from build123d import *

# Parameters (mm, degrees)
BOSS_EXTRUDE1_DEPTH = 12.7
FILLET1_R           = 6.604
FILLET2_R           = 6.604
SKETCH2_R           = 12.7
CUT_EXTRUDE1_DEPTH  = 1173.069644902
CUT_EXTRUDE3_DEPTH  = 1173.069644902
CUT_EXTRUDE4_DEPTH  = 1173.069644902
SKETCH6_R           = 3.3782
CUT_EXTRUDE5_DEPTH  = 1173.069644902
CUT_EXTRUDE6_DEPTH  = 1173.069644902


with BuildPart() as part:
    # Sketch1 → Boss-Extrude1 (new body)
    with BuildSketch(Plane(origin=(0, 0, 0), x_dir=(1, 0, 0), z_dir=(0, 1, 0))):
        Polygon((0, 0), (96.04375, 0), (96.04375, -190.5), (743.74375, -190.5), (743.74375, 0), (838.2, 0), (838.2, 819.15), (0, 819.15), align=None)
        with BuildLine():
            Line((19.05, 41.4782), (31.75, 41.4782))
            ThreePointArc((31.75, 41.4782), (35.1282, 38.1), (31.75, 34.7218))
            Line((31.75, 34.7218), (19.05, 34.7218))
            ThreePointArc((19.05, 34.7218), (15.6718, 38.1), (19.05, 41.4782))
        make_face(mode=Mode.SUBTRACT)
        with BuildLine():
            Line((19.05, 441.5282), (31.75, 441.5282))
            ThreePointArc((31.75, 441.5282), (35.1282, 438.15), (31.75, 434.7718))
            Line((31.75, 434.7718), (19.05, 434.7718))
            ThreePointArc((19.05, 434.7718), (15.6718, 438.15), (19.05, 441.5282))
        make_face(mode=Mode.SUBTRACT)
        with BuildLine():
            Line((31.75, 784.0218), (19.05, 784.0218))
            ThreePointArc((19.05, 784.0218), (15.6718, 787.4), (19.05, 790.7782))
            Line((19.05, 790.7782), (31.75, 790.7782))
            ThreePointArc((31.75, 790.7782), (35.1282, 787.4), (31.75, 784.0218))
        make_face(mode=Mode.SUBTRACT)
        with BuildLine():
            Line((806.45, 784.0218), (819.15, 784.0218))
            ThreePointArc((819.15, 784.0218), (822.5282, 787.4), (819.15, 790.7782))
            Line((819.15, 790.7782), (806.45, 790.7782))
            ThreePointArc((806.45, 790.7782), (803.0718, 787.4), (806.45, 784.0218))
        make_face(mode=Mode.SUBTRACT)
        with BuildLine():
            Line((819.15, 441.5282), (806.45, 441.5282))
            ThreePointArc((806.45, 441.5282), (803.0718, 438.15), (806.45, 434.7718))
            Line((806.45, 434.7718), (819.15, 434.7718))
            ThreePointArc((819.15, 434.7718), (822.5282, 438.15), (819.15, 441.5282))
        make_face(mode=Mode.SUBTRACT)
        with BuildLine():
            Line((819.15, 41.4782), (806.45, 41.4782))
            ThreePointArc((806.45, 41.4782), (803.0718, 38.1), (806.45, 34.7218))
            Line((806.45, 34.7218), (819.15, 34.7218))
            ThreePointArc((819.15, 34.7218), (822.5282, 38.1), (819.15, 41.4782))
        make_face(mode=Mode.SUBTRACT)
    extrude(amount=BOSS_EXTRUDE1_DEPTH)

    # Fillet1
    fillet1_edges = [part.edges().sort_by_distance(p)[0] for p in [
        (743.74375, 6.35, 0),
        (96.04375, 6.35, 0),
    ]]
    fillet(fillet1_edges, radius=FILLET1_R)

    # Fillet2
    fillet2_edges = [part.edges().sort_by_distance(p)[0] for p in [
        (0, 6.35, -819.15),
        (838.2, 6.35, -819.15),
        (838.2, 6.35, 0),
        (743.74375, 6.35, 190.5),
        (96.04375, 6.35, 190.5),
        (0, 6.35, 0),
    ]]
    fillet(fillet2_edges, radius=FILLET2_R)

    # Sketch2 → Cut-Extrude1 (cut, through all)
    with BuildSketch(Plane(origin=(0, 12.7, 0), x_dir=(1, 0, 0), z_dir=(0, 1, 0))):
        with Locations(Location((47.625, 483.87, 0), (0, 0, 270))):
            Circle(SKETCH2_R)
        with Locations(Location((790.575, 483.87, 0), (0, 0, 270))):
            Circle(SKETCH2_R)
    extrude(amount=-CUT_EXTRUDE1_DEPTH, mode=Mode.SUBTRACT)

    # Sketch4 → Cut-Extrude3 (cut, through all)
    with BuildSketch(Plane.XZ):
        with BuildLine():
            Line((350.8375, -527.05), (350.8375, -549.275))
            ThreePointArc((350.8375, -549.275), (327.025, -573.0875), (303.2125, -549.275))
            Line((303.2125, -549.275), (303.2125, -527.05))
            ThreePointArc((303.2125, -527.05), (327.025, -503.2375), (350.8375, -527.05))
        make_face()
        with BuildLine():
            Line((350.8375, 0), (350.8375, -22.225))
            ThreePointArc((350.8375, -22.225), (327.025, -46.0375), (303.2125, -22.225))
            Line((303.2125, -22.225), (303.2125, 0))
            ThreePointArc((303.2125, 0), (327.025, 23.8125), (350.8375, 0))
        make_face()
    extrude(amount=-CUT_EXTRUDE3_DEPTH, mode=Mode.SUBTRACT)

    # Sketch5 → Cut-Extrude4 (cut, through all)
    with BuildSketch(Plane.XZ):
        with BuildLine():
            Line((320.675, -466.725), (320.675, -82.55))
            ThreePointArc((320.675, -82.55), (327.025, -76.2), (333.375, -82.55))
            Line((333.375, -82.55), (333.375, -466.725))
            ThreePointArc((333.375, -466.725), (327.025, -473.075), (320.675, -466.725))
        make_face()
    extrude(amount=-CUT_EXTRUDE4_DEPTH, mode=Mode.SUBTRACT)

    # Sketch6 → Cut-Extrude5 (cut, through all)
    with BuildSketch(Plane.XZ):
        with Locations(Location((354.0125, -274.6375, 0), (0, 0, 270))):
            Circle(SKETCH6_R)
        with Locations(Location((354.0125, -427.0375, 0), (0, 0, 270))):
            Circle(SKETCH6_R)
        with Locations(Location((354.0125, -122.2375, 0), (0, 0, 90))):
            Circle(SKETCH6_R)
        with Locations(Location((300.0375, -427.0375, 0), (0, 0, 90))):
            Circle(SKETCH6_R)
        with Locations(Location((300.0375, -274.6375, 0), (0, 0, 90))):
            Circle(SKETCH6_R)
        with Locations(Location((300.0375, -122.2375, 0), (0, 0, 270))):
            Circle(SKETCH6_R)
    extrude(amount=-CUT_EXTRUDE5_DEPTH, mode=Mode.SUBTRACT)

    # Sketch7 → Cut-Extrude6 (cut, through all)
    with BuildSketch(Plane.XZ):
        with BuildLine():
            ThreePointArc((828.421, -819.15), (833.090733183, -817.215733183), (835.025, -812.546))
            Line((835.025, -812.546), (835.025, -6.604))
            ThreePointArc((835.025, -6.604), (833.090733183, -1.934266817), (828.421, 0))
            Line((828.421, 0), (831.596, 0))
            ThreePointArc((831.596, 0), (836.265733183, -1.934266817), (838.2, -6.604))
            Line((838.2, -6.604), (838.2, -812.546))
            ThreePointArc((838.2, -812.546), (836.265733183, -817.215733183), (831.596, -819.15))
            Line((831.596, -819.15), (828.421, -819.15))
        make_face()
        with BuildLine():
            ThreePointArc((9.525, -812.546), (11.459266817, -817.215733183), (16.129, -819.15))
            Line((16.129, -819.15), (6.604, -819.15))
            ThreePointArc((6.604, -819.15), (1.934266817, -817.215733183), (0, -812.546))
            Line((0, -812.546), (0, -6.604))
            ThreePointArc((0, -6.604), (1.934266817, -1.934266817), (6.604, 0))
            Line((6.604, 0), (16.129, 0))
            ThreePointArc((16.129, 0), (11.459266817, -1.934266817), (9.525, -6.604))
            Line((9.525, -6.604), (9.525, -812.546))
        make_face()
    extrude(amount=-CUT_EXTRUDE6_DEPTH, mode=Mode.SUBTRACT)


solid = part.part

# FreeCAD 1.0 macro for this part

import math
import FreeCAD as App
import Part
import Sketcher
from FreeCAD import Vector
Q = App.Units.Quantity


def edges_at(feature, points):
    """Names of the edges that pass closest to the given points."""
    edges = feature.Shape.Edges
    near = lambda p: min(range(len(edges)), key=lambda i: edges[i].distToShape(Part.Vertex(*p))[0])
    return sorted({f"Edge{near(p) + 1}" for p in points})

doc = App.newDocument("Part")
params = doc.addObject("Spreadsheet::Sheet", "Params")
for row, (alias, value) in enumerate([
    ("sketch1_width", "33 in"),
    ("sketch1_width2", "25.5 in"),
    ("sketch1_width3", "0.5 in"),
    ("sketch1_height", "7.5 in"),
    ("sketch1_radius", "0.133 in"),
    ("pad1_length", "0.5 in"),
    ("fillet_radius", "0.26 in"),
    ("fillet2_radius", "0.26 in"),
    ("sketch2_diameter", "1 in"),
    ("sketch3_radius", "0.9375 in"),
    ("sketch3_height", "0.875 in"),
    ("sketch4_radius", "0.25 in"),
    ("sketch4_height", "15.125 in"),
    ("sketch5_diameter", "0.266 in"),
    ("sketch6_radius", "0.26 in"),
    ("sketch6_height", "31.73 in"),
    ("sketch6_width", "0.125 in"),
    ("sketch6_width2", "0.375 in"),
], start=1):
    params.set(f"A{row}", alias)
    params.set(f"B{row}", "=" + value)
    params.setAlias(f"B{row}", alias)

body = doc.addObject("PartDesign::Body", "Body")

# Sketch on XZ plane
sketch1 = doc.addObject("Sketcher::SketchObject", "Sketch")
body.addObject(sketch1)
sketch1.AttachmentSupport = (doc.XZ_Plane, [""])
sketch1.MapMode = "FlatFace"
sketch1.addGeometry([
    Part.LineSegment(Vector(0, 0, 0), Vector(96, 0, 0)),  # 0
    Part.LineSegment(Vector(96, 0, 0), Vector(96, 190.5, 0)),  # 1
    Part.LineSegment(Vector(96, 190.5, 0), Vector(743.7, 190.5, 0)),  # 2
    Part.LineSegment(Vector(743.7, 190.5, 0), Vector(743.7, 0, 0)),  # 3
    Part.LineSegment(Vector(743.7, 0, 0), Vector(838.2, 0, 0)),  # 4
    Part.LineSegment(Vector(838.2, 0, 0), Vector(838.2, -819.1, 0)),  # 5
    Part.LineSegment(Vector(838.2, -819.1, 0), Vector(0, -819.1, 0)),  # 6
    Part.LineSegment(Vector(0, -819.1, 0), Vector(0, 0, 0)),  # 7
    Part.ArcOfCircle(Part.Circle(Vector(19.1, -38.1, 0), Vector(0, 0, 1), 3.4), math.radians(90), math.radians(270)),  # 8
    Part.LineSegment(Vector(19.1, -41.5, 0), Vector(31.8, -41.5, 0)),  # 9
    Part.ArcOfCircle(Part.Circle(Vector(31.8, -38.1, 0), Vector(0, 0, 1), 3.4), math.radians(-90), math.radians(90)),  # 10
    Part.LineSegment(Vector(31.8, -34.7, 0), Vector(19.1, -34.7, 0)),  # 11
    Part.LineSegment(Vector(806.5, -41.5, 0), Vector(819.1, -41.5, 0)),  # 12
    Part.ArcOfCircle(Part.Circle(Vector(819.1, -38.1, 0), Vector(0, 0, 1), 3.4), math.radians(-90), math.radians(90)),  # 13
    Part.LineSegment(Vector(819.1, -34.7, 0), Vector(806.5, -34.7, 0)),  # 14
    Part.ArcOfCircle(Part.Circle(Vector(806.5, -38.1, 0), Vector(0, 0, 1), 3.4), math.radians(90), math.radians(270)),  # 15
    Part.ArcOfCircle(Part.Circle(Vector(19.1, -438.1, 0), Vector(0, 0, 1), 3.4), math.radians(90), math.radians(270)),  # 16
    Part.LineSegment(Vector(19.1, -441.5, 0), Vector(31.8, -441.5, 0)),  # 17
    Part.ArcOfCircle(Part.Circle(Vector(31.8, -438.1, 0), Vector(0, 0, 1), 3.4), math.radians(-90), math.radians(90)),  # 18
    Part.LineSegment(Vector(31.8, -434.8, 0), Vector(19.1, -434.8, 0)),  # 19
    Part.ArcOfCircle(Part.Circle(Vector(31.8, -787.4, 0), Vector(0, 0, 1), 3.4), math.radians(-90), math.radians(90)),  # 20
    Part.LineSegment(Vector(31.8, -784, 0), Vector(19.1, -784, 0)),  # 21
    Part.ArcOfCircle(Part.Circle(Vector(19.1, -787.4, 0), Vector(0, 0, 1), 3.4), math.radians(90), math.radians(270)),  # 22
    Part.LineSegment(Vector(19.1, -790.8, 0), Vector(31.8, -790.8, 0)),  # 23
    Part.LineSegment(Vector(806.5, -441.5, 0), Vector(819.1, -441.5, 0)),  # 24
    Part.ArcOfCircle(Part.Circle(Vector(819.1, -438.1, 0), Vector(0, 0, 1), 3.4), math.radians(-90), math.radians(90)),  # 25
    Part.LineSegment(Vector(819.1, -434.8, 0), Vector(806.5, -434.8, 0)),  # 26
    Part.ArcOfCircle(Part.Circle(Vector(806.5, -438.1, 0), Vector(0, 0, 1), 3.4), math.radians(90), math.radians(270)),  # 27
    Part.LineSegment(Vector(819.1, -784, 0), Vector(806.5, -784, 0)),  # 28
    Part.ArcOfCircle(Part.Circle(Vector(806.5, -787.4, 0), Vector(0, 0, 1), 3.4), math.radians(90), math.radians(270)),  # 29
    Part.LineSegment(Vector(806.5, -790.8, 0), Vector(819.1, -790.8, 0)),  # 30
    Part.ArcOfCircle(Part.Circle(Vector(819.1, -787.4, 0), Vector(0, 0, 1), 3.4), math.radians(-90), math.radians(90)),  # 31
], False)
sketch1.addConstraint([
    Sketcher.Constraint("Coincident", 0, 2, 1, 1),
    Sketcher.Constraint("Coincident", 1, 2, 2, 1),
    Sketcher.Constraint("Coincident", 2, 2, 3, 1),
    Sketcher.Constraint("Coincident", 3, 2, 4, 1),
    Sketcher.Constraint("Coincident", 4, 2, 5, 1),
    Sketcher.Constraint("Coincident", 5, 2, 6, 1),
    Sketcher.Constraint("Coincident", 6, 2, 7, 1),
    Sketcher.Constraint("Coincident", 7, 2, 0, 1),
    Sketcher.Constraint("Tangent", 8, 2, 9, 1),
    Sketcher.Constraint("Tangent", 9, 2, 10, 1),
    Sketcher.Constraint("Tangent", 10, 2, 11, 1),
    Sketcher.Constraint("Tangent", 11, 2, 8, 1),
    Sketcher.Constraint("Tangent", 12, 2, 13, 1),
    Sketcher.Constraint("Tangent", 13, 2, 14, 1),
    Sketcher.Constraint("Tangent", 14, 2, 15, 1),
    Sketcher.Constraint("Tangent", 15, 2, 12, 1),
    Sketcher.Constraint("Tangent", 16, 2, 17, 1),
    Sketcher.Constraint("Tangent", 17, 2, 18, 1),
    Sketcher.Constraint("Tangent", 18, 2, 19, 1),
    Sketcher.Constraint("Tangent", 19, 2, 16, 1),
    Sketcher.Constraint("Tangent", 20, 2, 21, 1),
    Sketcher.Constraint("Tangent", 21, 2, 22, 1),
    Sketcher.Constraint("Tangent", 22, 2, 23, 1),
    Sketcher.Constraint("Tangent", 23, 2, 20, 1),
    Sketcher.Constraint("Tangent", 24, 2, 25, 1),
    Sketcher.Constraint("Tangent", 25, 2, 26, 1),
    Sketcher.Constraint("Tangent", 26, 2, 27, 1),
    Sketcher.Constraint("Tangent", 27, 2, 24, 1),
    Sketcher.Constraint("Tangent", 28, 2, 29, 1),
    Sketcher.Constraint("Tangent", 29, 2, 30, 1),
    Sketcher.Constraint("Tangent", 30, 2, 31, 1),
    Sketcher.Constraint("Tangent", 31, 2, 28, 1),
    Sketcher.Constraint("Horizontal", 0),
    Sketcher.Constraint("Vertical", 1),
    Sketcher.Constraint("Horizontal", 2),
    Sketcher.Constraint("Vertical", 3),
    Sketcher.Constraint("Horizontal", 4),
    Sketcher.Constraint("Vertical", 5),
    Sketcher.Constraint("Horizontal", 6),
    Sketcher.Constraint("Vertical", 7),
    Sketcher.Constraint("Horizontal", 9),
    Sketcher.Constraint("Horizontal", 11),
    Sketcher.Constraint("Horizontal", 12),
    Sketcher.Constraint("Horizontal", 14),
    Sketcher.Constraint("Horizontal", 17),
    Sketcher.Constraint("Horizontal", 19),
    Sketcher.Constraint("Horizontal", 21),
    Sketcher.Constraint("Horizontal", 23),
    Sketcher.Constraint("Horizontal", 24),
    Sketcher.Constraint("Horizontal", 26),
    Sketcher.Constraint("Horizontal", 28),
    Sketcher.Constraint("Horizontal", 30),
    Sketcher.Constraint("Coincident", 7, 2, -1, 1),
    Sketcher.Constraint("Equal", 10, 13),
    Sketcher.Constraint("Equal", 15, 16),
    Sketcher.Constraint("Equal", 18, 20),
    Sketcher.Constraint("Equal", 22, 25),
    Sketcher.Constraint("Equal", 27, 29),
    Sketcher.Constraint("PointOnObject", 3, 2, -1),
    Sketcher.Constraint("Horizontal", 10, 3, 13, 3),
    Sketcher.Constraint("Horizontal", 18, 3, 25, 3),
    Sketcher.Constraint("Horizontal", 22, 3, 29, 3),
    Sketcher.Constraint("Vertical", 8, 3, 16, 3),
    Sketcher.Constraint("Vertical", 10, 3, 18, 3),
    Sketcher.Constraint("Vertical", 18, 3, 20, 3),
    Sketcher.Constraint("Vertical", 16, 3, 22, 3),
    Sketcher.Constraint("Vertical", 13, 3, 25, 3),
    Sketcher.Constraint("Vertical", 15, 3, 27, 3),
    Sketcher.Constraint("Vertical", 27, 3, 29, 3),
    Sketcher.Constraint("Vertical", 25, 3, 31, 3),
    Sketcher.Constraint("Equal", 11, 12),
    Sketcher.Constraint("DistanceX", 6, 2, 6, 1, Q("33 in")),
    Sketcher.Constraint("DistanceX", 2, 1, 2, 2, Q("25.5 in")),
    Sketcher.Constraint("DistanceX", 9, 1, 9, 2, Q("0.5 in")),
    Sketcher.Constraint("DistanceY", 1, 1, 1, 2, Q("7.5 in")),
    Sketcher.Constraint("DistanceY", 20, 3, -1, 1, Q("31 in")),
    Sketcher.Constraint("Radius", 8, Q("0.133 in")),
    Sketcher.Constraint("DistanceX", 10, 3, 13, 3, Q("31 in")),
    Sketcher.Constraint("DistanceY", 10, 3, 1, 2, Q("9 in")),
    Sketcher.Constraint("DistanceY", 5, 2, 25, 3, Q("15 in")),
    Sketcher.Constraint("DistanceY", 5, 2, 5, 1, Q("32.25 in")),
    Sketcher.Constraint("DistanceX", 0, 1, 0, 2, Q("3.78125 in")),
    Sketcher.Constraint("DistanceX", -1, 1, 8, 3, Q("0.75 in")),
])
sketch1.setExpression("Constraints[71]", "Params.sketch1_width")
sketch1.setExpression("Constraints[72]", "Params.sketch1_width2")
sketch1.setExpression("Constraints[73]", "Params.sketch1_width3")
sketch1.setExpression("Constraints[74]", "Params.sketch1_height")
sketch1.setExpression("Constraints[76]", "Params.sketch1_radius")
pad1 = doc.addObject("PartDesign::Pad", "Pad")
body.addObject(pad1)
pad1.Profile = sketch1
pad1.setExpression("Length", "Params.pad1_length")
pad1.Reversed = True
doc.recompute()

fillet = doc.addObject("PartDesign::Fillet", "Fillet")
body.addObject(fillet)
fillet.Base = (pad1, edges_at(pad1, [(743.744, 6.35, 0), (96.044, 6.35, 0)]))
fillet.setExpression("Radius", "Params.fillet_radius")
doc.recompute()

fillet2 = doc.addObject("PartDesign::Fillet", "Fillet001")
body.addObject(fillet2)
fillet2.Base = (fillet, edges_at(fillet, [
    (0, 6.35, -819.15),
    (838.2, 6.35, -819.15),
    (838.2, 6.35, 0),
    (743.744, 6.35, 190.5),
    (96.044, 6.35, 190.5),
    (0, 6.35, 0),
]))
fillet2.setExpression("Radius", "Params.fillet2_radius")

# Sketch on XZ plane
sketch2 = doc.addObject("Sketcher::SketchObject", "Sketch001")
body.addObject(sketch2)
sketch2.AttachmentSupport = (doc.XZ_Plane, [""])
sketch2.MapMode = "FlatFace"
sketch2.AttachmentOffset = App.Placement(Vector(0, 0, -0.5 * 25.4), App.Rotation())
sketch2.addGeometry([
    Part.Circle(Vector(48, -484, 0), Vector(0, 0, 1), 13),
    Part.Circle(Vector(791, -484, 0), Vector(0, 0, 1), 13),
], False)
sketch2.addConstraint([
    Sketcher.Constraint("Equal", 0, 1),
    Sketcher.Constraint("Horizontal", 0, 3, 1, 3),
    Sketcher.Constraint("Diameter", 0, Q("1 in")),
    Sketcher.Constraint("DistanceY", 0, 3, -1, 1, Q("19.05 in")),
    Sketcher.Constraint("DistanceX", 0, 3, 1, 3, Q("29.25 in")),
    Sketcher.Constraint("DistanceX", -1, 1, 0, 3, Q("1.875 in")),
])
sketch2.setExpression("Constraints[2]", "Params.sketch2_diameter")
pocket1 = doc.addObject("PartDesign::Pocket", "Pocket")
body.addObject(pocket1)
pocket1.Profile = sketch2
pocket1.Type = "ThroughAll"
pocket1.Reversed = True

# Sketch on XZ plane
sketch3 = doc.addObject("Sketcher::SketchObject", "Sketch002")
body.addObject(sketch3)
sketch3.AttachmentSupport = (doc.XZ_Plane, [""])
sketch3.MapMode = "FlatFace"
sketch3.addGeometry([
    Part.LineSegment(Vector(351, -549, 0), Vector(351, -527, 0)),  # 0
    Part.ArcOfCircle(Part.Circle(Vector(327, -527, 0), Vector(0, 0, 1), 24), math.radians(0), math.radians(180)),  # 1
    Part.LineSegment(Vector(303, -527, 0), Vector(303, -549, 0)),  # 2
    Part.ArcOfCircle(Part.Circle(Vector(327, -549, 0), Vector(0, 0, 1), 24), math.radians(180), math.radians(360)),  # 3
    Part.LineSegment(Vector(351, -22, 0), Vector(351, 0, 0)),  # 4
    Part.ArcOfCircle(Part.Circle(Vector(327, 0, 0), Vector(0, 0, 1), 24), math.radians(0), math.radians(180)),  # 5
    Part.LineSegment(Vector(303, 0, 0), Vector(303, -22, 0)),  # 6
    Part.ArcOfCircle(Part.Circle(Vector(327, -22, 0), Vector(0, 0, 1), 24), math.radians(180), math.radians(360)),  # 7
], False)
sketch3.addConstraint([
    Sketcher.Constraint("Tangent", 0, 2, 1, 1),
    Sketcher.Constraint("Tangent", 1, 2, 2, 1),
    Sketcher.Constraint("Tangent", 2, 2, 3, 1),
    Sketcher.Constraint("Tangent", 3, 2, 0, 1),
    Sketcher.Constraint("Tangent", 4, 2, 5, 1),
    Sketcher.Constraint("Tangent", 5, 2, 6, 1),
    Sketcher.Constraint("Tangent", 6, 2, 7, 1),
    Sketcher.Constraint("Tangent", 7, 2, 4, 1),
    Sketcher.Constraint("Vertical", 0),
    Sketcher.Constraint("Vertical", 2),
    Sketcher.Constraint("Vertical", 4),
    Sketcher.Constraint("Vertical", 6),
    Sketcher.Constraint("Equal", 3, 5),
    Sketcher.Constraint("PointOnObject", 5, 3, -1),
    Sketcher.Constraint("Vertical", 3, 3, 5, 3),
    Sketcher.Constraint("Equal", 2, 4),
    Sketcher.Constraint("Radius", 1, Q("0.9375 in")),
    Sketcher.Constraint("DistanceY", 0, 1, 0, 2, Q("0.875 in")),
    Sketcher.Constraint("DistanceY", 1, 3, -1, 1, Q("20.75 in")),
    Sketcher.Constraint("DistanceX", -1, 1, 1, 3, Q("12.875 in")),
])
sketch3.setExpression("Constraints[16]", "Params.sketch3_radius")
sketch3.setExpression("Constraints[17]", "Params.sketch3_height")
pocket2 = doc.addObject("PartDesign::Pocket", "Pocket001")
body.addObject(pocket2)
pocket2.Profile = sketch3
pocket2.Type = "ThroughAll"

# Sketch on XZ plane
sketch4 = doc.addObject("Sketcher::SketchObject", "Sketch003")
body.addObject(sketch4)
sketch4.AttachmentSupport = (doc.XZ_Plane, [""])
sketch4.MapMode = "FlatFace"
sketch4.addGeometry([
    Part.LineSegment(Vector(321, -83, 0), Vector(321, -467, 0)),
    Part.ArcOfCircle(Part.Circle(Vector(327, -467, 0), Vector(0, 0, 1), 6), math.radians(180), math.radians(360)),
    Part.LineSegment(Vector(333, -467, 0), Vector(333, -83, 0)),
    Part.ArcOfCircle(Part.Circle(Vector(327, -83, 0), Vector(0, 0, 1), 6), math.radians(0), math.radians(180)),
], False)
sketch4.addConstraint([
    Sketcher.Constraint("Tangent", 0, 2, 1, 1),
    Sketcher.Constraint("Tangent", 1, 2, 2, 1),
    Sketcher.Constraint("Tangent", 2, 2, 3, 1),
    Sketcher.Constraint("Tangent", 3, 2, 0, 1),
    Sketcher.Constraint("Vertical", 0),
    Sketcher.Constraint("Vertical", 2),
    Sketcher.Constraint("Radius", 1, Q("0.25 in")),
    Sketcher.Constraint("DistanceY", 0, 2, 0, 1, Q("15.125 in")),
    Sketcher.Constraint("DistanceY", 3, 3, -1, 1, Q("3.25 in")),
    Sketcher.Constraint("DistanceX", -1, 1, 1, 3, Q("12.875 in")),
])
sketch4.setExpression("Constraints[6]", "Params.sketch4_radius")
sketch4.setExpression("Constraints[7]", "Params.sketch4_height")
pocket3 = doc.addObject("PartDesign::Pocket", "Pocket002")
body.addObject(pocket3)
pocket3.Profile = sketch4
pocket3.Type = "ThroughAll"

# Sketch on XZ plane
sketch5 = doc.addObject("Sketcher::SketchObject", "Sketch004")
body.addObject(sketch5)
sketch5.AttachmentSupport = (doc.XZ_Plane, [""])
sketch5.MapMode = "FlatFace"
sketch5.addGeometry([
    Part.Circle(Vector(354, -274.6, 0), Vector(0, 0, 1), 3.4),  # 0
    Part.Circle(Vector(354, -427, 0), Vector(0, 0, 1), 3.4),  # 1
    Part.Circle(Vector(354, -122.2, 0), Vector(0, 0, 1), 3.4),  # 2
    Part.Circle(Vector(300, -427, 0), Vector(0, 0, 1), 3.4),  # 3
    Part.Circle(Vector(300, -274.6, 0), Vector(0, 0, 1), 3.4),  # 4
    Part.Circle(Vector(300, -122.2, 0), Vector(0, 0, 1), 3.4),  # 5
], False)
sketch5.addConstraint([
    Sketcher.Constraint("Equal", 0, 1),
    Sketcher.Constraint("Equal", 1, 2),
    Sketcher.Constraint("Equal", 2, 3),
    Sketcher.Constraint("Equal", 3, 4),
    Sketcher.Constraint("Equal", 4, 5),
    Sketcher.Constraint("Horizontal", 1, 3, 3, 3),
    Sketcher.Constraint("Horizontal", 0, 3, 4, 3),
    Sketcher.Constraint("Horizontal", 2, 3, 5, 3),
    Sketcher.Constraint("Vertical", 0, 3, 1, 3),
    Sketcher.Constraint("Vertical", 1, 3, 2, 3),
    Sketcher.Constraint("Vertical", 3, 3, 4, 3),
    Sketcher.Constraint("Vertical", 4, 3, 5, 3),
    Sketcher.Constraint("Diameter", 0, Q("0.266 in")),
    Sketcher.Constraint("DistanceY", 1, 3, 0, 3, Q("6 in")),
    Sketcher.Constraint("DistanceY", 0, 3, 2, 3, Q("6 in")),
    Sketcher.Constraint("DistanceX", -1, 1, 0, 3, Q("13.9375 in")),
    Sketcher.Constraint("DistanceY", 0, 3, -1, 1, Q("10.8125 in")),
    Sketcher.Constraint("DistanceX", -1, 1, 3, 3, Q("11.8125 in")),
])
sketch5.setExpression("Constraints[12]", "Params.sketch5_diameter")
pocket4 = doc.addObject("PartDesign::Pocket", "Pocket003")
body.addObject(pocket4)
pocket4.Profile = sketch5
pocket4.Type = "ThroughAll"

# Sketch on XZ plane
sketch6 = doc.addObject("Sketcher::SketchObject", "Sketch005")
body.addObject(sketch6)
sketch6.AttachmentSupport = (doc.XZ_Plane, [""])
sketch6.MapMode = "FlatFace"
sketch6.addGeometry([
    Part.ArcOfCircle(Part.Circle(Vector(828.4, -812.5, 0), Vector(0, 0, 1), 6.6), math.radians(-90), math.radians(0)),  # 0
    Part.LineSegment(Vector(828.4, -819.1, 0), Vector(831.6, -819.1, 0)),  # 1
    Part.ArcOfCircle(Part.Circle(Vector(831.6, -812.5, 0), Vector(0, 0, 1), 6.6), math.radians(-90), math.radians(0)),  # 2
    Part.LineSegment(Vector(838.2, -812.5, 0), Vector(838.2, -6.6, 0)),  # 3
    Part.ArcOfCircle(Part.Circle(Vector(831.6, -6.6, 0), Vector(0, 0, 1), 6.6), math.radians(0), math.radians(90)),  # 4
    Part.LineSegment(Vector(831.6, 0, 0), Vector(828.4, 0, 0)),  # 5
    Part.ArcOfCircle(Part.Circle(Vector(828.4, -6.6, 0), Vector(0, 0, 1), 6.6), math.radians(0), math.radians(90)),  # 6
    Part.LineSegment(Vector(835, -6.6, 0), Vector(835, -812.5, 0)),  # 7
    Part.ArcOfCircle(Part.Circle(Vector(16.1, -812.5, 0), Vector(0, 0, 1), 6.6), math.radians(180), math.radians(270)),  # 8
    Part.LineSegment(Vector(9.5, -812.5, 0), Vector(9.5, -6.6, 0)),  # 9
    Part.ArcOfCircle(Part.Circle(Vector(16.1, -6.6, 0), Vector(0, 0, 1), 6.6), math.radians(90), math.radians(180)),  # 10
    Part.LineSegment(Vector(16.1, 0, 0), Vector(6.6, 0, 0)),  # 11
    Part.ArcOfCircle(Part.Circle(Vector(6.6, -6.6, 0), Vector(0, 0, 1), 6.6), math.radians(90), math.radians(180)),  # 12
    Part.LineSegment(Vector(0, -6.6, 0), Vector(0, -812.5, 0)),  # 13
    Part.ArcOfCircle(Part.Circle(Vector(6.6, -812.5, 0), Vector(0, 0, 1), 6.6), math.radians(180), math.radians(270)),  # 14
    Part.LineSegment(Vector(6.6, -819.1, 0), Vector(16.1, -819.1, 0)),  # 15
], False)
sketch6.addConstraint([
    Sketcher.Constraint("Tangent", 0, 1, 1, 1),
    Sketcher.Constraint("Tangent", 1, 2, 2, 1),
    Sketcher.Constraint("Tangent", 2, 2, 3, 1),
    Sketcher.Constraint("Tangent", 3, 2, 4, 1),
    Sketcher.Constraint("Tangent", 4, 2, 5, 1),
    Sketcher.Constraint("Tangent", 5, 2, 6, 2),
    Sketcher.Constraint("Tangent", 6, 1, 7, 1),
    Sketcher.Constraint("Tangent", 7, 2, 0, 2),
    Sketcher.Constraint("Tangent", 8, 1, 9, 1),
    Sketcher.Constraint("Tangent", 9, 2, 10, 2),
    Sketcher.Constraint("Tangent", 10, 1, 11, 1),
    Sketcher.Constraint("Tangent", 11, 2, 12, 1),
    Sketcher.Constraint("Tangent", 12, 2, 13, 1),
    Sketcher.Constraint("Tangent", 13, 2, 14, 1),
    Sketcher.Constraint("Tangent", 14, 2, 15, 1),
    Sketcher.Constraint("Tangent", 15, 2, 8, 2),
    Sketcher.Constraint("Horizontal", 1),
    Sketcher.Constraint("Vertical", 3),
    Sketcher.Constraint("Horizontal", 5),
    Sketcher.Constraint("Vertical", 7),
    Sketcher.Constraint("Vertical", 9),
    Sketcher.Constraint("Horizontal", 11),
    Sketcher.Constraint("Vertical", 13),
    Sketcher.Constraint("Horizontal", 15),
    Sketcher.Constraint("Equal", 0, 2),
    Sketcher.Constraint("Equal", 2, 4),
    Sketcher.Constraint("Equal", 4, 6),
    Sketcher.Constraint("Equal", 6, 8),
    Sketcher.Constraint("Equal", 8, 10),
    Sketcher.Constraint("Equal", 10, 12),
    Sketcher.Constraint("Equal", 12, 14),
    Sketcher.Constraint("PointOnObject", 4, 2, -1),
    Sketcher.Constraint("PointOnObject", 10, 1, -1),
    Sketcher.Constraint("PointOnObject", 12, 2, -2),
    Sketcher.Constraint("Horizontal", 2, 3, 8, 3),
    Sketcher.Constraint("Radius", 0, Q("0.26 in")),
    Sketcher.Constraint("DistanceX", -1, 1, 2, 2, Q("33 in")),
    Sketcher.Constraint("DistanceY", 3, 1, 3, 2, Q("31.73 in")),
    Sketcher.Constraint("DistanceX", 1, 1, 1, 2, Q("0.125 in")),
    Sketcher.Constraint("DistanceX", 11, 2, 11, 1, Q("0.375 in")),
])
sketch6.setExpression("Constraints[35]", "Params.sketch6_radius")
sketch6.setExpression("Constraints[37]", "Params.sketch6_height")
sketch6.setExpression("Constraints[38]", "Params.sketch6_width")
sketch6.setExpression("Constraints[39]", "Params.sketch6_width2")
pocket5 = doc.addObject("PartDesign::Pocket", "Pocket004")
body.addObject(pocket5)
pocket5.Profile = sketch6
pocket5.Type = "ThroughAll"

doc.recompute()
